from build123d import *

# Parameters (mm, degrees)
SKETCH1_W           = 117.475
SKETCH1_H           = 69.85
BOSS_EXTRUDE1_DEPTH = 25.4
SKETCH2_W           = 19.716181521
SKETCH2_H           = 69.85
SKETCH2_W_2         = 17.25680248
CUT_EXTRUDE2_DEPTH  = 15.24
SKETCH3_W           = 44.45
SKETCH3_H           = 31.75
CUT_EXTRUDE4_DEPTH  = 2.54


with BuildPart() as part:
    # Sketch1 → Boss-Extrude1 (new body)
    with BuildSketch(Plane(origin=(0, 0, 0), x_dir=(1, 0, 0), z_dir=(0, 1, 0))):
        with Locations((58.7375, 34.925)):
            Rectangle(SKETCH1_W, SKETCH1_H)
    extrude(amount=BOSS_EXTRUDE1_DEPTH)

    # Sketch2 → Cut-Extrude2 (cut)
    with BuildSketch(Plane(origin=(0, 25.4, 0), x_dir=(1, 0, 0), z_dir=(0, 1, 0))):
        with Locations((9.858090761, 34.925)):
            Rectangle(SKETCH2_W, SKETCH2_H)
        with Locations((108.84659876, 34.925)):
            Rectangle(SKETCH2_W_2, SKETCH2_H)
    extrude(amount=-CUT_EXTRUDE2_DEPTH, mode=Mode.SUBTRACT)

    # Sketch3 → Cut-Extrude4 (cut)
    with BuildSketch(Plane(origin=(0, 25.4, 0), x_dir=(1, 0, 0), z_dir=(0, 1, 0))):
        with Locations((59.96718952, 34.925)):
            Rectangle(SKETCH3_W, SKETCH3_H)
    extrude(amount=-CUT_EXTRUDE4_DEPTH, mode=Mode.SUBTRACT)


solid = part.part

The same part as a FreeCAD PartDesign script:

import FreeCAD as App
import Part
import Sketcher
from FreeCAD import Vector
Q = App.Units.Quantity


def add_polygon(sketch, points):
    """Adds a closed chain of lines whose ends are joined by coincident constraints."""
    first, n = sketch.GeometryCount, len(points)
    for a, b in zip(points, points[1:] + points[:1]):
        sketch.addGeometry(Part.LineSegment(App.Vector(*a, 0), App.Vector(*b, 0)), False)
    for i in range(n):
        sketch.addConstraint(Sketcher.Constraint("Coincident", first + i, 2, first + (i + 1) % n, 1))

doc = App.newDocument("Part")
body = doc.addObject("PartDesign::Body", "Body")

# Sketch on XZ plane
sketch1 = body.newObject("Sketcher::SketchObject", "Sketch")
sketch1.AttachmentSupport = (doc.getObject("XZ_Plane"), [""])
sketch1.MapMode = "FlatFace"
add_polygon(sketch1, [(0, -70), (0, 0), (117, 0), (117, -70)])  # lines 0-3
sketch1.addConstraint(Sketcher.Constraint("Vertical", 0))
sketch1.addConstraint(Sketcher.Constraint("Horizontal", 1))
sketch1.addConstraint(Sketcher.Constraint("Vertical", 2))
sketch1.addConstraint(Sketcher.Constraint("Horizontal", 3))
sketch1.addConstraint(Sketcher.Constraint("Coincident", 0, 2, -1, 1))
sketch1.addConstraint(Sketcher.Constraint("DistanceY", 0, 1, 0, 2, Q("2.75 in")))
sketch1.addConstraint(Sketcher.Constraint("DistanceX", 1, 1, 1, 2, Q("4.625 in")))
pad1 = body.newObject("PartDesign::Pad", "Pad")
pad1.Profile = sketch1
pad1.Length = Q("1 in")
pad1.Reversed = True

# Sketch on XZ plane
sketch2 = body.newObject("Sketcher::SketchObject", "Sketch001")
sketch2.AttachmentSupport = (doc.getObject("XZ_Plane"), [""])
sketch2.MapMode = "FlatFace"
sketch2.AttachmentOffset = App.Placement(Vector(0, 0, -1 * 25.4), App.Rotation())
add_polygon(sketch2, [(0, -70), (0, 0), (20, 0), (20, -70)])  # lines 0-3
add_polygon(sketch2, [(100, -70), (100, 0), (117, 0), (117, -70)])  # lines 4-7
sketch2.addConstraint(Sketcher.Constraint("Vertical", 0))
sketch2.addConstraint(Sketcher.Constraint("Horizontal", 1))
sketch2.addConstraint(Sketcher.Constraint("Vertical", 2))
sketch2.addConstraint(Sketcher.Constraint("Horizontal", 3))
sketch2.addConstraint(Sketcher.Constraint("Vertical", 4))
sketch2.addConstraint(Sketcher.Constraint("Horizontal", 5))
sketch2.addConstraint(Sketcher.Constraint("Vertical", 6))
sketch2.addConstraint(Sketcher.Constraint("Horizontal", 7))
sketch2.addConstraint(Sketcher.Constraint("Coincident", 0, 2, -1, 1))
sketch2.addConstraint(Sketcher.Constraint("PointOnObject", 4, 2, -1))
sketch2.addConstraint(Sketcher.Constraint("Horizontal", 3, 2, 6, 2))
sketch2.addConstraint(Sketcher.Constraint("DistanceY", 0, 1, 0, 2, Q("2.75 in")))
sketch2.addConstraint(Sketcher.Constraint("DistanceX", -1, 1, 5, 2, Q("4.625 in")))
sketch2.addConstraint(Sketcher.Constraint("DistanceX", 1, 1, 1, 2, Q("19.716182 mm")))
sketch2.addConstraint(Sketcher.Constraint("DistanceX", 5, 1, 5, 2, Q("17.256802 mm")))
pocket1 = body.newObject("PartDesign::Pocket", "Pocket")
pocket1.Profile = sketch2
pocket1.Length = Q("0.6 in")
pocket1.Reversed = True

# Sketch on XZ plane
sketch3 = body.newObject("Sketcher::SketchObject", "Sketch002")
sketch3.AttachmentSupport = (doc.getObject("XZ_Plane"), [""])
sketch3.MapMode = "FlatFace"
sketch3.AttachmentOffset = App.Placement(Vector(0, 0, -1 * 25.4), App.Rotation())
add_polygon(sketch3, [(38, -51), (38, -19), (82, -19), (82, -51)])  # lines 0-3
sketch3.addConstraint(Sketcher.Constraint("Vertical", 0))
sketch3.addConstraint(Sketcher.Constraint("Horizontal", 1))
sketch3.addConstraint(Sketcher.Constraint("Vertical", 2))
sketch3.addConstraint(Sketcher.Constraint("Horizontal", 3))
sketch3.addConstraint(Sketcher.Constraint("DistanceY", 2, 2, -1, 1, Q("2 in")))
sketch3.addConstraint(Sketcher.Constraint("DistanceX", 1, 1, 1, 2, Q("1.75 in")))
sketch3.addConstraint(Sketcher.Constraint("DistanceY", 0, 1, 0, 2, Q("1.25 in")))
sketch3.addConstraint(Sketcher.Constraint("DistanceX", -1, 1, 0, 2, Q("37.74219 mm")))
pocket2 = body.newObject("PartDesign::Pocket", "Pocket001")
pocket2.Profile = sketch3
pocket2.Length = Q("0.1 in")
pocket2.Reversed = True

doc.recompute()
